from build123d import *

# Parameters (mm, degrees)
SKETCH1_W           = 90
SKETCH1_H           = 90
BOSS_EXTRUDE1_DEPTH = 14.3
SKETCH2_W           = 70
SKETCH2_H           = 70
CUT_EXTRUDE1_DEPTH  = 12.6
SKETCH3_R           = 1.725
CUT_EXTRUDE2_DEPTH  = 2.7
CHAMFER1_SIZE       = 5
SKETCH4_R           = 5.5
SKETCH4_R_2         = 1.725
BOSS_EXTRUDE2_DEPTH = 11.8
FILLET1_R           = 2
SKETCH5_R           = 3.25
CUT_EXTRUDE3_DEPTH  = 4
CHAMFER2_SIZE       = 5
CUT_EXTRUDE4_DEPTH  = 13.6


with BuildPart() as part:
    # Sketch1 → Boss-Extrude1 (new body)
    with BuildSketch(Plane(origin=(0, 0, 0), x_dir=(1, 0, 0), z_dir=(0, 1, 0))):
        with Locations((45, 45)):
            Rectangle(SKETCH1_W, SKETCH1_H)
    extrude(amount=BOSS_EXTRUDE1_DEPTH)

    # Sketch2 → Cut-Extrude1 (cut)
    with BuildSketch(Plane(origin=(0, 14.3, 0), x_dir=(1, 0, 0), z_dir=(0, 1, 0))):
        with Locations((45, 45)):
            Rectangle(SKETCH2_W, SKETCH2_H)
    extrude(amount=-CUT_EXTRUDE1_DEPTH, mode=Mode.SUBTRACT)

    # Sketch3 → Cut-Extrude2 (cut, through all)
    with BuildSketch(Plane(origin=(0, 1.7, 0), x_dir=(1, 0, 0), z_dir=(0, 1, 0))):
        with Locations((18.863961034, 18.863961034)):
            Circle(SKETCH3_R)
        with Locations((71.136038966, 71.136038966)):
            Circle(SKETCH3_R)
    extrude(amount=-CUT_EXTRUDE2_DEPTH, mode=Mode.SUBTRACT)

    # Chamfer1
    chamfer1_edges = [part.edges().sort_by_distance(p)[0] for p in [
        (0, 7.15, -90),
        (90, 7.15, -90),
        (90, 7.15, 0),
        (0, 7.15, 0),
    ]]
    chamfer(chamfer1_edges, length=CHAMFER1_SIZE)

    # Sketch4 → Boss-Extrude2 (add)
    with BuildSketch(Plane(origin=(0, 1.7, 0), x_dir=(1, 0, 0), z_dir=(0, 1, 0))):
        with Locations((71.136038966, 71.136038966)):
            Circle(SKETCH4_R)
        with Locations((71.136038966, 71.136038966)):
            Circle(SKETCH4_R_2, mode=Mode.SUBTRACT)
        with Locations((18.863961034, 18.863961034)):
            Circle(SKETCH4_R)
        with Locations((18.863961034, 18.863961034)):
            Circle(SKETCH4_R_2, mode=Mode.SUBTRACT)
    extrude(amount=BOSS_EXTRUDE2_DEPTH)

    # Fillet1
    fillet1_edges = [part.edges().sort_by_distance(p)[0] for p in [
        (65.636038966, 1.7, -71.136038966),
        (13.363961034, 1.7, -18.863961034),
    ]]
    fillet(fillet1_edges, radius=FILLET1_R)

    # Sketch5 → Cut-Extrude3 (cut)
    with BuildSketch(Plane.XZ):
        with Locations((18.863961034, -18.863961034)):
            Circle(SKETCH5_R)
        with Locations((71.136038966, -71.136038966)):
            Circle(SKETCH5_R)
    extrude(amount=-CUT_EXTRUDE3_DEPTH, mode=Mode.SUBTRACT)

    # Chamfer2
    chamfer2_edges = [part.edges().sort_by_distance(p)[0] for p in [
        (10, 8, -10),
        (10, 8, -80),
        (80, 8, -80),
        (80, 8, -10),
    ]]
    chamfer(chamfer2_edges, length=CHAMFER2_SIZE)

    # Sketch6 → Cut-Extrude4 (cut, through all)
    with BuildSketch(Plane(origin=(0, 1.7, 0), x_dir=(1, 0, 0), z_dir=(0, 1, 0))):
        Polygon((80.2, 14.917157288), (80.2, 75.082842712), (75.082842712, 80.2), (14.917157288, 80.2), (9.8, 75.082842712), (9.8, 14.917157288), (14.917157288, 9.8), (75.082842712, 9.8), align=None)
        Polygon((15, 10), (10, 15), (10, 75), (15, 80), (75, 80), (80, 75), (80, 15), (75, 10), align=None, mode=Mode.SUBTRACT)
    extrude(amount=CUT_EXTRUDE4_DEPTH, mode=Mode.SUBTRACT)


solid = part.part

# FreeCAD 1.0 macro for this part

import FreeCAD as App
import Part
import Sketcher
Q = App.Units.Quantity


def edges_at(feature, points):
    """Names of the edges that pass closest to the given points."""
    edges = feature.Shape.Edges
    near = lambda p: min(range(len(edges)), key=lambda i: edges[i].distToShape(Part.Vertex(*p))[0])
    return sorted({f"Edge{near(p) + 1}" for p in points})

doc = App.newDocument("Part")
body = doc.addObject("PartDesign::Body", "Body")

# Sketch on XZ plane
sketch1 = body.newObject("Sketcher::SketchObject", "Sketch")
sketch1.AttachmentSupport = (doc.getObject("XZ_Plane"), [""])
sketch1.MapMode = "FlatFace"
sketch1.addGeometry([
    Part.LineSegment(App.Vector(0, -90, 0), App.Vector(0, 0, 0)),
    Part.LineSegment(App.Vector(0, 0, 0), App.Vector(90, 0, 0)),
    Part.LineSegment(App.Vector(90, 0, 0), App.Vector(90, -90, 0)),
    Part.LineSegment(App.Vector(90, -90, 0), App.Vector(0, -90, 0)),
], False)
sketch1.addConstraint([
    Sketcher.Constraint("Coincident", 0, 2, 1, 1),
    Sketcher.Constraint("Coincident", 1, 2, 2, 1),
    Sketcher.Constraint("Coincident", 2, 2, 3, 1),
    Sketcher.Constraint("Coincident", 3, 2, 0, 1),
    Sketcher.Constraint("Vertical", 0),
    Sketcher.Constraint("Horizontal", 1),
    Sketcher.Constraint("Vertical", 2),
    Sketcher.Constraint("Horizontal", 3),
    Sketcher.Constraint("Coincident", 0, 2, -1, 1),
    Sketcher.Constraint("Equal", 3, 0),
    Sketcher.Constraint("DistanceX", 1, 1, 1, 2, Q("90 mm")),
])
pad1 = body.newObject("PartDesign::Pad", "Pad")
pad1.Profile = sketch1
pad1.Length = 14.3
pad1.Reversed = True

# Sketch on XZ plane
sketch2 = body.newObject("Sketcher::SketchObject", "Sketch001")
sketch2.AttachmentSupport = (doc.getObject("XZ_Plane"), [""])
sketch2.MapMode = "FlatFace"
sketch2.AttachmentOffset = App.Placement(App.Vector(0, 0, -14.3), App.Rotation())
sketch2.addGeometry([
    Part.LineSegment(App.Vector(10, -80, 0), App.Vector(10, -10, 0)),
    Part.LineSegment(App.Vector(10, -10, 0), App.Vector(80, -10, 0)),
    Part.LineSegment(App.Vector(80, -10, 0), App.Vector(80, -80, 0)),
    Part.LineSegment(App.Vector(80, -80, 0), App.Vector(10, -80, 0)),
], False)
sketch2.addConstraint([
    Sketcher.Constraint("Coincident", 0, 2, 1, 1),
    Sketcher.Constraint("Coincident", 1, 2, 2, 1),
    Sketcher.Constraint("Coincident", 2, 2, 3, 1),
    Sketcher.Constraint("Coincident", 3, 2, 0, 1),
    Sketcher.Constraint("Vertical", 0),
    Sketcher.Constraint("Horizontal", 1),
    Sketcher.Constraint("Vertical", 2),
    Sketcher.Constraint("Horizontal", 3),
    Sketcher.Constraint("Equal", 3, 0),
    Sketcher.Constraint("DistanceX", 1, 1, 1, 2, Q("70 mm")),
    Sketcher.Constraint("DistanceX", -1, 1, 0, 2, Q("10 mm")),
    Sketcher.Constraint("DistanceY", 0, 2, -1, 1, Q("10 mm")),
])
pocket1 = body.newObject("PartDesign::Pocket", "Pocket")
pocket1.Profile = sketch2
pocket1.Length = 12.6
pocket1.Reversed = True

# Sketch on XZ plane
sketch3 = body.newObject("Sketcher::SketchObject", "Sketch002")
sketch3.AttachmentSupport = (doc.getObject("XZ_Plane"), [""])
sketch3.MapMode = "FlatFace"
sketch3.AttachmentOffset = App.Placement(App.Vector(0, 0, -1.7), App.Rotation())
sketch3.addGeometry([
    Part.Circle(App.Vector(18.863961, -18.863961, 0), App.Vector(0, 0, 1), 1.725),
    Part.Circle(App.Vector(71.136039, -71.136039, 0), App.Vector(0, 0, 1), 1.725),
], False)
sketch3.addConstraint([
    Sketcher.Constraint("Equal", 0, 1),
    Sketcher.Constraint("Diameter", 0, Q("3.45 mm")),
    Sketcher.Constraint("DistanceX", -1, 1, 0, 3, Q("18.863961 mm")),
    Sketcher.Constraint("DistanceY", 0, 3, -1, 1, Q("18.863961 mm")),
    Sketcher.Constraint("DistanceX", -1, 1, 1, 3, Q("71.136039 mm")),
    Sketcher.Constraint("DistanceY", 1, 3, -1, 1, Q("71.136039 mm")),
])
pocket2 = body.newObject("PartDesign::Pocket", "Pocket001")
pocket2.Profile = sketch3
pocket2.Type = "ThroughAll"
pocket2.Reversed = True
doc.recompute()

chamfer = body.newObject("PartDesign::Chamfer", "Chamfer")
chamfer.Base = (pocket2, edges_at(pocket2, [
    (0, 7.15, -90),
    (90, 7.15, -90),
    (90, 7.15, 0),
    (0, 7.15, 0),
]))
chamfer.Size = 5

# Sketch on XZ plane
sketch4 = body.newObject("Sketcher::SketchObject", "Sketch003")
sketch4.AttachmentSupport = (doc.getObject("XZ_Plane"), [""])
sketch4.MapMode = "FlatFace"
sketch4.AttachmentOffset = App.Placement(App.Vector(0, 0, -1.7), App.Rotation())
sketch4.addGeometry([
    Part.Circle(App.Vector(71.136039, -71.136039, 0), App.Vector(0, 0, 1), 5.5),
    Part.Circle(App.Vector(71.136039, -71.136039, 0), App.Vector(0, 0, 1), 1.725),
    Part.Circle(App.Vector(18.863961, -18.863961, 0), App.Vector(0, 0, 1), 5.5),
    Part.Circle(App.Vector(18.863961, -18.863961, 0), App.Vector(0, 0, 1), 1.725),
], False)
sketch4.addConstraint([
    Sketcher.Constraint("Coincident", 1, 3, 0, 3),
    Sketcher.Constraint("Coincident", 3, 3, 2, 3),
    Sketcher.Constraint("Equal", 0, 2),
    Sketcher.Constraint("Equal", 1, 3),
    Sketcher.Constraint("Diameter", 0, Q("11 mm")),
    Sketcher.Constraint("Diameter", 1, Q("3.45 mm")),
    Sketcher.Constraint("DistanceX", -1, 1, 0, 3, Q("71.136039 mm")),
    Sketcher.Constraint("DistanceY", 0, 3, -1, 1, Q("71.136039 mm")),
    Sketcher.Constraint("DistanceX", -1, 1, 2, 3, Q("18.863961 mm")),
    Sketcher.Constraint("DistanceY", 2, 3, -1, 1, Q("18.863961 mm")),
])
pad2 = body.newObject("PartDesign::Pad", "Pad001")
pad2.Profile = sketch4
pad2.Length = 11.8
pad2.Reversed = True
doc.recompute()

fillet = body.newObject("PartDesign::Fillet", "Fillet")
fillet.Base = (pad2, edges_at(pad2, [(65.636, 1.7, -71.136), (13.364, 1.7, -18.864)]))
fillet.Radius = 2

# Sketch on XZ plane
sketch5 = body.newObject("Sketcher::SketchObject", "Sketch004")
sketch5.AttachmentSupport = (doc.getObject("XZ_Plane"), [""])
sketch5.MapMode = "FlatFace"
sketch5.addGeometry([
    Part.Circle(App.Vector(18.863961, -18.863961, 0), App.Vector(0, 0, 1), 3.25),
    Part.Circle(App.Vector(71.136039, -71.136039, 0), App.Vector(0, 0, 1), 3.25),
], False)
sketch5.addConstraint([
    Sketcher.Constraint("Equal", 0, 1),
    Sketcher.Constraint("Diameter", 0, Q("6.5 mm")),
    Sketcher.Constraint("DistanceX", -1, 1, 0, 3, Q("18.863961 mm")),
    Sketcher.Constraint("DistanceY", 0, 3, -1, 1, Q("18.863961 mm")),
    Sketcher.Constraint("DistanceX", -1, 1, 1, 3, Q("71.136039 mm")),
    Sketcher.Constraint("DistanceY", 1, 3, -1, 1, Q("71.136039 mm")),
])
pocket3 = body.newObject("PartDesign::Pocket", "Pocket002")
pocket3.Profile = sketch5
pocket3.Length = 4
doc.recompute()

chamfer2 = body.newObject("PartDesign::Chamfer", "Chamfer001")
chamfer2.Base = (pocket3, edges_at(pocket3, [
    (10, 8, -10),
    (10, 8, -80),
    (80, 8, -80),
    (80, 8, -10),
]))
chamfer2.Size = 5

# Sketch on XZ plane
sketch6 = body.newObject("Sketcher::SketchObject", "Sketch005")
sketch6.AttachmentSupport = (doc.getObject("XZ_Plane"), [""])
sketch6.MapMode = "FlatFace"
sketch6.AttachmentOffset = App.Placement(App.Vector(0, 0, -1.7), App.Rotation())
sketch6.addGeometry([
    Part.LineSegment(App.Vector(80.2, -14.917157, 0), App.Vector(80.2, -75.082843, 0)),  # 0
    Part.LineSegment(App.Vector(80.2, -75.082843, 0), App.Vector(75.082843, -80.2, 0)),  # 1
    Part.LineSegment(App.Vector(75.082843, -80.2, 0), App.Vector(14.917157, -80.2, 0)),  # 2
    Part.LineSegment(App.Vector(14.917157, -80.2, 0), App.Vector(9.8, -75.082843, 0)),  # 3
    Part.LineSegment(App.Vector(9.8, -75.082843, 0), App.Vector(9.8, -14.917157, 0)),  # 4
    Part.LineSegment(App.Vector(9.8, -14.917157, 0), App.Vector(14.917157, -9.8, 0)),  # 5
    Part.LineSegment(App.Vector(14.917157, -9.8, 0), App.Vector(75.082843, -9.8, 0)),  # 6
    Part.LineSegment(App.Vector(75.082843, -9.8, 0), App.Vector(80.2, -14.917157, 0)),  # 7
    Part.LineSegment(App.Vector(75, -10, 0), App.Vector(15, -10, 0)),  # 8
    Part.LineSegment(App.Vector(15, -10, 0), App.Vector(10, -15, 0)),  # 9
    Part.LineSegment(App.Vector(10, -15, 0), App.Vector(10, -75, 0)),  # 10
    Part.LineSegment(App.Vector(10, -75, 0), App.Vector(15, -80, 0)),  # 11
    Part.LineSegment(App.Vector(15, -80, 0), App.Vector(75, -80, 0)),  # 12
    Part.LineSegment(App.Vector(75, -80, 0), App.Vector(80, -75, 0)),  # 13
    Part.LineSegment(App.Vector(80, -75, 0), App.Vector(80, -15, 0)),  # 14
    Part.LineSegment(App.Vector(80, -15, 0), App.Vector(75, -10, 0)),  # 15
], False)
sketch6.addConstraint([
    Sketcher.Constraint("Coincident", 0, 2, 1, 1),
    Sketcher.Constraint("Coincident", 1, 2, 2, 1),
    Sketcher.Constraint("Coincident", 2, 2, 3, 1),
    Sketcher.Constraint("Coincident", 3, 2, 4, 1),
    Sketcher.Constraint("Coincident", 4, 2, 5, 1),
    Sketcher.Constraint("Coincident", 5, 2, 6, 1),
    Sketcher.Constraint("Coincident", 6, 2, 7, 1),
    Sketcher.Constraint("Coincident", 7, 2, 0, 1),
    Sketcher.Constraint("Coincident", 8, 2, 9, 1),
    Sketcher.Constraint("Coincident", 9, 2, 10, 1),
    Sketcher.Constraint("Coincident", 10, 2, 11, 1),
    Sketcher.Constraint("Coincident", 11, 2, 12, 1),
    Sketcher.Constraint("Coincident", 12, 2, 13, 1),
    Sketcher.Constraint("Coincident", 13, 2, 14, 1),
    Sketcher.Constraint("Coincident", 14, 2, 15, 1),
    Sketcher.Constraint("Coincident", 15, 2, 8, 1),
    Sketcher.Constraint("Vertical", 0),
    Sketcher.Constraint("Horizontal", 2),
    Sketcher.Constraint("Vertical", 4),
    Sketcher.Constraint("Horizontal", 6),
    Sketcher.Constraint("Horizontal", 8),
    Sketcher.Constraint("Vertical", 10),
    Sketcher.Constraint("Horizontal", 12),
    Sketcher.Constraint("Vertical", 14),
    Sketcher.Constraint("Perpendicular", 1, 3),
    Sketcher.Constraint("Perpendicular", 3, 5),
    Sketcher.Constraint("Perpendicular", 5, 7),
    Sketcher.Constraint("Perpendicular", 7, 9),
    Sketcher.Constraint("Perpendicular", 9, 11),
    Sketcher.Constraint("Perpendicular", 11, 13),
    Sketcher.Constraint("Perpendicular", 13, 15),
    Sketcher.Constraint("Horizontal", 0, 2, 3, 2),
    Sketcher.Constraint("Horizontal", 4, 2, 7, 2),
    Sketcher.Constraint("Horizontal", 10, 2, 13, 2),
    Sketcher.Constraint("Horizontal", 9, 2, 14, 2),
    Sketcher.Constraint("Vertical", 2, 2, 5, 2),
    Sketcher.Constraint("Vertical", 1, 2, 6, 2),
    Sketcher.Constraint("Vertical", 8, 2, 11, 2),
    Sketcher.Constraint("Equal", 6, 0),
    Sketcher.Constraint("Equal", 12, 10),
    Sketcher.Constraint("DistanceX", 8, 2, 8, 1, Q("60 mm")),
    Sketcher.Constraint("DistanceX", -1, 1, 8, 2, Q("15 mm")),
    Sketcher.Constraint("DistanceY", 8, 2, -1, 1, Q("10 mm")),
    Sketcher.Constraint("DistanceX", -1, 1, 9, 2, Q("10 mm")),
    Sketcher.Constraint("DistanceX", -1, 1, 0, 2, Q("80.2 mm")),
    Sketcher.Constraint("DistanceY", 1, 2, -1, 1, Q("80.2 mm")),
    Sketcher.Constraint("DistanceX", -1, 1, 3, 2, Q("9.8 mm")),
    Sketcher.Constraint("DistanceX", 2, 2, 2, 1, Q("60.165685 mm")),
])
pocket4 = body.newObject("PartDesign::Pocket", "Pocket003")
pocket4.Profile = sketch6
pocket4.Type = "ThroughAll"

doc.recompute()
